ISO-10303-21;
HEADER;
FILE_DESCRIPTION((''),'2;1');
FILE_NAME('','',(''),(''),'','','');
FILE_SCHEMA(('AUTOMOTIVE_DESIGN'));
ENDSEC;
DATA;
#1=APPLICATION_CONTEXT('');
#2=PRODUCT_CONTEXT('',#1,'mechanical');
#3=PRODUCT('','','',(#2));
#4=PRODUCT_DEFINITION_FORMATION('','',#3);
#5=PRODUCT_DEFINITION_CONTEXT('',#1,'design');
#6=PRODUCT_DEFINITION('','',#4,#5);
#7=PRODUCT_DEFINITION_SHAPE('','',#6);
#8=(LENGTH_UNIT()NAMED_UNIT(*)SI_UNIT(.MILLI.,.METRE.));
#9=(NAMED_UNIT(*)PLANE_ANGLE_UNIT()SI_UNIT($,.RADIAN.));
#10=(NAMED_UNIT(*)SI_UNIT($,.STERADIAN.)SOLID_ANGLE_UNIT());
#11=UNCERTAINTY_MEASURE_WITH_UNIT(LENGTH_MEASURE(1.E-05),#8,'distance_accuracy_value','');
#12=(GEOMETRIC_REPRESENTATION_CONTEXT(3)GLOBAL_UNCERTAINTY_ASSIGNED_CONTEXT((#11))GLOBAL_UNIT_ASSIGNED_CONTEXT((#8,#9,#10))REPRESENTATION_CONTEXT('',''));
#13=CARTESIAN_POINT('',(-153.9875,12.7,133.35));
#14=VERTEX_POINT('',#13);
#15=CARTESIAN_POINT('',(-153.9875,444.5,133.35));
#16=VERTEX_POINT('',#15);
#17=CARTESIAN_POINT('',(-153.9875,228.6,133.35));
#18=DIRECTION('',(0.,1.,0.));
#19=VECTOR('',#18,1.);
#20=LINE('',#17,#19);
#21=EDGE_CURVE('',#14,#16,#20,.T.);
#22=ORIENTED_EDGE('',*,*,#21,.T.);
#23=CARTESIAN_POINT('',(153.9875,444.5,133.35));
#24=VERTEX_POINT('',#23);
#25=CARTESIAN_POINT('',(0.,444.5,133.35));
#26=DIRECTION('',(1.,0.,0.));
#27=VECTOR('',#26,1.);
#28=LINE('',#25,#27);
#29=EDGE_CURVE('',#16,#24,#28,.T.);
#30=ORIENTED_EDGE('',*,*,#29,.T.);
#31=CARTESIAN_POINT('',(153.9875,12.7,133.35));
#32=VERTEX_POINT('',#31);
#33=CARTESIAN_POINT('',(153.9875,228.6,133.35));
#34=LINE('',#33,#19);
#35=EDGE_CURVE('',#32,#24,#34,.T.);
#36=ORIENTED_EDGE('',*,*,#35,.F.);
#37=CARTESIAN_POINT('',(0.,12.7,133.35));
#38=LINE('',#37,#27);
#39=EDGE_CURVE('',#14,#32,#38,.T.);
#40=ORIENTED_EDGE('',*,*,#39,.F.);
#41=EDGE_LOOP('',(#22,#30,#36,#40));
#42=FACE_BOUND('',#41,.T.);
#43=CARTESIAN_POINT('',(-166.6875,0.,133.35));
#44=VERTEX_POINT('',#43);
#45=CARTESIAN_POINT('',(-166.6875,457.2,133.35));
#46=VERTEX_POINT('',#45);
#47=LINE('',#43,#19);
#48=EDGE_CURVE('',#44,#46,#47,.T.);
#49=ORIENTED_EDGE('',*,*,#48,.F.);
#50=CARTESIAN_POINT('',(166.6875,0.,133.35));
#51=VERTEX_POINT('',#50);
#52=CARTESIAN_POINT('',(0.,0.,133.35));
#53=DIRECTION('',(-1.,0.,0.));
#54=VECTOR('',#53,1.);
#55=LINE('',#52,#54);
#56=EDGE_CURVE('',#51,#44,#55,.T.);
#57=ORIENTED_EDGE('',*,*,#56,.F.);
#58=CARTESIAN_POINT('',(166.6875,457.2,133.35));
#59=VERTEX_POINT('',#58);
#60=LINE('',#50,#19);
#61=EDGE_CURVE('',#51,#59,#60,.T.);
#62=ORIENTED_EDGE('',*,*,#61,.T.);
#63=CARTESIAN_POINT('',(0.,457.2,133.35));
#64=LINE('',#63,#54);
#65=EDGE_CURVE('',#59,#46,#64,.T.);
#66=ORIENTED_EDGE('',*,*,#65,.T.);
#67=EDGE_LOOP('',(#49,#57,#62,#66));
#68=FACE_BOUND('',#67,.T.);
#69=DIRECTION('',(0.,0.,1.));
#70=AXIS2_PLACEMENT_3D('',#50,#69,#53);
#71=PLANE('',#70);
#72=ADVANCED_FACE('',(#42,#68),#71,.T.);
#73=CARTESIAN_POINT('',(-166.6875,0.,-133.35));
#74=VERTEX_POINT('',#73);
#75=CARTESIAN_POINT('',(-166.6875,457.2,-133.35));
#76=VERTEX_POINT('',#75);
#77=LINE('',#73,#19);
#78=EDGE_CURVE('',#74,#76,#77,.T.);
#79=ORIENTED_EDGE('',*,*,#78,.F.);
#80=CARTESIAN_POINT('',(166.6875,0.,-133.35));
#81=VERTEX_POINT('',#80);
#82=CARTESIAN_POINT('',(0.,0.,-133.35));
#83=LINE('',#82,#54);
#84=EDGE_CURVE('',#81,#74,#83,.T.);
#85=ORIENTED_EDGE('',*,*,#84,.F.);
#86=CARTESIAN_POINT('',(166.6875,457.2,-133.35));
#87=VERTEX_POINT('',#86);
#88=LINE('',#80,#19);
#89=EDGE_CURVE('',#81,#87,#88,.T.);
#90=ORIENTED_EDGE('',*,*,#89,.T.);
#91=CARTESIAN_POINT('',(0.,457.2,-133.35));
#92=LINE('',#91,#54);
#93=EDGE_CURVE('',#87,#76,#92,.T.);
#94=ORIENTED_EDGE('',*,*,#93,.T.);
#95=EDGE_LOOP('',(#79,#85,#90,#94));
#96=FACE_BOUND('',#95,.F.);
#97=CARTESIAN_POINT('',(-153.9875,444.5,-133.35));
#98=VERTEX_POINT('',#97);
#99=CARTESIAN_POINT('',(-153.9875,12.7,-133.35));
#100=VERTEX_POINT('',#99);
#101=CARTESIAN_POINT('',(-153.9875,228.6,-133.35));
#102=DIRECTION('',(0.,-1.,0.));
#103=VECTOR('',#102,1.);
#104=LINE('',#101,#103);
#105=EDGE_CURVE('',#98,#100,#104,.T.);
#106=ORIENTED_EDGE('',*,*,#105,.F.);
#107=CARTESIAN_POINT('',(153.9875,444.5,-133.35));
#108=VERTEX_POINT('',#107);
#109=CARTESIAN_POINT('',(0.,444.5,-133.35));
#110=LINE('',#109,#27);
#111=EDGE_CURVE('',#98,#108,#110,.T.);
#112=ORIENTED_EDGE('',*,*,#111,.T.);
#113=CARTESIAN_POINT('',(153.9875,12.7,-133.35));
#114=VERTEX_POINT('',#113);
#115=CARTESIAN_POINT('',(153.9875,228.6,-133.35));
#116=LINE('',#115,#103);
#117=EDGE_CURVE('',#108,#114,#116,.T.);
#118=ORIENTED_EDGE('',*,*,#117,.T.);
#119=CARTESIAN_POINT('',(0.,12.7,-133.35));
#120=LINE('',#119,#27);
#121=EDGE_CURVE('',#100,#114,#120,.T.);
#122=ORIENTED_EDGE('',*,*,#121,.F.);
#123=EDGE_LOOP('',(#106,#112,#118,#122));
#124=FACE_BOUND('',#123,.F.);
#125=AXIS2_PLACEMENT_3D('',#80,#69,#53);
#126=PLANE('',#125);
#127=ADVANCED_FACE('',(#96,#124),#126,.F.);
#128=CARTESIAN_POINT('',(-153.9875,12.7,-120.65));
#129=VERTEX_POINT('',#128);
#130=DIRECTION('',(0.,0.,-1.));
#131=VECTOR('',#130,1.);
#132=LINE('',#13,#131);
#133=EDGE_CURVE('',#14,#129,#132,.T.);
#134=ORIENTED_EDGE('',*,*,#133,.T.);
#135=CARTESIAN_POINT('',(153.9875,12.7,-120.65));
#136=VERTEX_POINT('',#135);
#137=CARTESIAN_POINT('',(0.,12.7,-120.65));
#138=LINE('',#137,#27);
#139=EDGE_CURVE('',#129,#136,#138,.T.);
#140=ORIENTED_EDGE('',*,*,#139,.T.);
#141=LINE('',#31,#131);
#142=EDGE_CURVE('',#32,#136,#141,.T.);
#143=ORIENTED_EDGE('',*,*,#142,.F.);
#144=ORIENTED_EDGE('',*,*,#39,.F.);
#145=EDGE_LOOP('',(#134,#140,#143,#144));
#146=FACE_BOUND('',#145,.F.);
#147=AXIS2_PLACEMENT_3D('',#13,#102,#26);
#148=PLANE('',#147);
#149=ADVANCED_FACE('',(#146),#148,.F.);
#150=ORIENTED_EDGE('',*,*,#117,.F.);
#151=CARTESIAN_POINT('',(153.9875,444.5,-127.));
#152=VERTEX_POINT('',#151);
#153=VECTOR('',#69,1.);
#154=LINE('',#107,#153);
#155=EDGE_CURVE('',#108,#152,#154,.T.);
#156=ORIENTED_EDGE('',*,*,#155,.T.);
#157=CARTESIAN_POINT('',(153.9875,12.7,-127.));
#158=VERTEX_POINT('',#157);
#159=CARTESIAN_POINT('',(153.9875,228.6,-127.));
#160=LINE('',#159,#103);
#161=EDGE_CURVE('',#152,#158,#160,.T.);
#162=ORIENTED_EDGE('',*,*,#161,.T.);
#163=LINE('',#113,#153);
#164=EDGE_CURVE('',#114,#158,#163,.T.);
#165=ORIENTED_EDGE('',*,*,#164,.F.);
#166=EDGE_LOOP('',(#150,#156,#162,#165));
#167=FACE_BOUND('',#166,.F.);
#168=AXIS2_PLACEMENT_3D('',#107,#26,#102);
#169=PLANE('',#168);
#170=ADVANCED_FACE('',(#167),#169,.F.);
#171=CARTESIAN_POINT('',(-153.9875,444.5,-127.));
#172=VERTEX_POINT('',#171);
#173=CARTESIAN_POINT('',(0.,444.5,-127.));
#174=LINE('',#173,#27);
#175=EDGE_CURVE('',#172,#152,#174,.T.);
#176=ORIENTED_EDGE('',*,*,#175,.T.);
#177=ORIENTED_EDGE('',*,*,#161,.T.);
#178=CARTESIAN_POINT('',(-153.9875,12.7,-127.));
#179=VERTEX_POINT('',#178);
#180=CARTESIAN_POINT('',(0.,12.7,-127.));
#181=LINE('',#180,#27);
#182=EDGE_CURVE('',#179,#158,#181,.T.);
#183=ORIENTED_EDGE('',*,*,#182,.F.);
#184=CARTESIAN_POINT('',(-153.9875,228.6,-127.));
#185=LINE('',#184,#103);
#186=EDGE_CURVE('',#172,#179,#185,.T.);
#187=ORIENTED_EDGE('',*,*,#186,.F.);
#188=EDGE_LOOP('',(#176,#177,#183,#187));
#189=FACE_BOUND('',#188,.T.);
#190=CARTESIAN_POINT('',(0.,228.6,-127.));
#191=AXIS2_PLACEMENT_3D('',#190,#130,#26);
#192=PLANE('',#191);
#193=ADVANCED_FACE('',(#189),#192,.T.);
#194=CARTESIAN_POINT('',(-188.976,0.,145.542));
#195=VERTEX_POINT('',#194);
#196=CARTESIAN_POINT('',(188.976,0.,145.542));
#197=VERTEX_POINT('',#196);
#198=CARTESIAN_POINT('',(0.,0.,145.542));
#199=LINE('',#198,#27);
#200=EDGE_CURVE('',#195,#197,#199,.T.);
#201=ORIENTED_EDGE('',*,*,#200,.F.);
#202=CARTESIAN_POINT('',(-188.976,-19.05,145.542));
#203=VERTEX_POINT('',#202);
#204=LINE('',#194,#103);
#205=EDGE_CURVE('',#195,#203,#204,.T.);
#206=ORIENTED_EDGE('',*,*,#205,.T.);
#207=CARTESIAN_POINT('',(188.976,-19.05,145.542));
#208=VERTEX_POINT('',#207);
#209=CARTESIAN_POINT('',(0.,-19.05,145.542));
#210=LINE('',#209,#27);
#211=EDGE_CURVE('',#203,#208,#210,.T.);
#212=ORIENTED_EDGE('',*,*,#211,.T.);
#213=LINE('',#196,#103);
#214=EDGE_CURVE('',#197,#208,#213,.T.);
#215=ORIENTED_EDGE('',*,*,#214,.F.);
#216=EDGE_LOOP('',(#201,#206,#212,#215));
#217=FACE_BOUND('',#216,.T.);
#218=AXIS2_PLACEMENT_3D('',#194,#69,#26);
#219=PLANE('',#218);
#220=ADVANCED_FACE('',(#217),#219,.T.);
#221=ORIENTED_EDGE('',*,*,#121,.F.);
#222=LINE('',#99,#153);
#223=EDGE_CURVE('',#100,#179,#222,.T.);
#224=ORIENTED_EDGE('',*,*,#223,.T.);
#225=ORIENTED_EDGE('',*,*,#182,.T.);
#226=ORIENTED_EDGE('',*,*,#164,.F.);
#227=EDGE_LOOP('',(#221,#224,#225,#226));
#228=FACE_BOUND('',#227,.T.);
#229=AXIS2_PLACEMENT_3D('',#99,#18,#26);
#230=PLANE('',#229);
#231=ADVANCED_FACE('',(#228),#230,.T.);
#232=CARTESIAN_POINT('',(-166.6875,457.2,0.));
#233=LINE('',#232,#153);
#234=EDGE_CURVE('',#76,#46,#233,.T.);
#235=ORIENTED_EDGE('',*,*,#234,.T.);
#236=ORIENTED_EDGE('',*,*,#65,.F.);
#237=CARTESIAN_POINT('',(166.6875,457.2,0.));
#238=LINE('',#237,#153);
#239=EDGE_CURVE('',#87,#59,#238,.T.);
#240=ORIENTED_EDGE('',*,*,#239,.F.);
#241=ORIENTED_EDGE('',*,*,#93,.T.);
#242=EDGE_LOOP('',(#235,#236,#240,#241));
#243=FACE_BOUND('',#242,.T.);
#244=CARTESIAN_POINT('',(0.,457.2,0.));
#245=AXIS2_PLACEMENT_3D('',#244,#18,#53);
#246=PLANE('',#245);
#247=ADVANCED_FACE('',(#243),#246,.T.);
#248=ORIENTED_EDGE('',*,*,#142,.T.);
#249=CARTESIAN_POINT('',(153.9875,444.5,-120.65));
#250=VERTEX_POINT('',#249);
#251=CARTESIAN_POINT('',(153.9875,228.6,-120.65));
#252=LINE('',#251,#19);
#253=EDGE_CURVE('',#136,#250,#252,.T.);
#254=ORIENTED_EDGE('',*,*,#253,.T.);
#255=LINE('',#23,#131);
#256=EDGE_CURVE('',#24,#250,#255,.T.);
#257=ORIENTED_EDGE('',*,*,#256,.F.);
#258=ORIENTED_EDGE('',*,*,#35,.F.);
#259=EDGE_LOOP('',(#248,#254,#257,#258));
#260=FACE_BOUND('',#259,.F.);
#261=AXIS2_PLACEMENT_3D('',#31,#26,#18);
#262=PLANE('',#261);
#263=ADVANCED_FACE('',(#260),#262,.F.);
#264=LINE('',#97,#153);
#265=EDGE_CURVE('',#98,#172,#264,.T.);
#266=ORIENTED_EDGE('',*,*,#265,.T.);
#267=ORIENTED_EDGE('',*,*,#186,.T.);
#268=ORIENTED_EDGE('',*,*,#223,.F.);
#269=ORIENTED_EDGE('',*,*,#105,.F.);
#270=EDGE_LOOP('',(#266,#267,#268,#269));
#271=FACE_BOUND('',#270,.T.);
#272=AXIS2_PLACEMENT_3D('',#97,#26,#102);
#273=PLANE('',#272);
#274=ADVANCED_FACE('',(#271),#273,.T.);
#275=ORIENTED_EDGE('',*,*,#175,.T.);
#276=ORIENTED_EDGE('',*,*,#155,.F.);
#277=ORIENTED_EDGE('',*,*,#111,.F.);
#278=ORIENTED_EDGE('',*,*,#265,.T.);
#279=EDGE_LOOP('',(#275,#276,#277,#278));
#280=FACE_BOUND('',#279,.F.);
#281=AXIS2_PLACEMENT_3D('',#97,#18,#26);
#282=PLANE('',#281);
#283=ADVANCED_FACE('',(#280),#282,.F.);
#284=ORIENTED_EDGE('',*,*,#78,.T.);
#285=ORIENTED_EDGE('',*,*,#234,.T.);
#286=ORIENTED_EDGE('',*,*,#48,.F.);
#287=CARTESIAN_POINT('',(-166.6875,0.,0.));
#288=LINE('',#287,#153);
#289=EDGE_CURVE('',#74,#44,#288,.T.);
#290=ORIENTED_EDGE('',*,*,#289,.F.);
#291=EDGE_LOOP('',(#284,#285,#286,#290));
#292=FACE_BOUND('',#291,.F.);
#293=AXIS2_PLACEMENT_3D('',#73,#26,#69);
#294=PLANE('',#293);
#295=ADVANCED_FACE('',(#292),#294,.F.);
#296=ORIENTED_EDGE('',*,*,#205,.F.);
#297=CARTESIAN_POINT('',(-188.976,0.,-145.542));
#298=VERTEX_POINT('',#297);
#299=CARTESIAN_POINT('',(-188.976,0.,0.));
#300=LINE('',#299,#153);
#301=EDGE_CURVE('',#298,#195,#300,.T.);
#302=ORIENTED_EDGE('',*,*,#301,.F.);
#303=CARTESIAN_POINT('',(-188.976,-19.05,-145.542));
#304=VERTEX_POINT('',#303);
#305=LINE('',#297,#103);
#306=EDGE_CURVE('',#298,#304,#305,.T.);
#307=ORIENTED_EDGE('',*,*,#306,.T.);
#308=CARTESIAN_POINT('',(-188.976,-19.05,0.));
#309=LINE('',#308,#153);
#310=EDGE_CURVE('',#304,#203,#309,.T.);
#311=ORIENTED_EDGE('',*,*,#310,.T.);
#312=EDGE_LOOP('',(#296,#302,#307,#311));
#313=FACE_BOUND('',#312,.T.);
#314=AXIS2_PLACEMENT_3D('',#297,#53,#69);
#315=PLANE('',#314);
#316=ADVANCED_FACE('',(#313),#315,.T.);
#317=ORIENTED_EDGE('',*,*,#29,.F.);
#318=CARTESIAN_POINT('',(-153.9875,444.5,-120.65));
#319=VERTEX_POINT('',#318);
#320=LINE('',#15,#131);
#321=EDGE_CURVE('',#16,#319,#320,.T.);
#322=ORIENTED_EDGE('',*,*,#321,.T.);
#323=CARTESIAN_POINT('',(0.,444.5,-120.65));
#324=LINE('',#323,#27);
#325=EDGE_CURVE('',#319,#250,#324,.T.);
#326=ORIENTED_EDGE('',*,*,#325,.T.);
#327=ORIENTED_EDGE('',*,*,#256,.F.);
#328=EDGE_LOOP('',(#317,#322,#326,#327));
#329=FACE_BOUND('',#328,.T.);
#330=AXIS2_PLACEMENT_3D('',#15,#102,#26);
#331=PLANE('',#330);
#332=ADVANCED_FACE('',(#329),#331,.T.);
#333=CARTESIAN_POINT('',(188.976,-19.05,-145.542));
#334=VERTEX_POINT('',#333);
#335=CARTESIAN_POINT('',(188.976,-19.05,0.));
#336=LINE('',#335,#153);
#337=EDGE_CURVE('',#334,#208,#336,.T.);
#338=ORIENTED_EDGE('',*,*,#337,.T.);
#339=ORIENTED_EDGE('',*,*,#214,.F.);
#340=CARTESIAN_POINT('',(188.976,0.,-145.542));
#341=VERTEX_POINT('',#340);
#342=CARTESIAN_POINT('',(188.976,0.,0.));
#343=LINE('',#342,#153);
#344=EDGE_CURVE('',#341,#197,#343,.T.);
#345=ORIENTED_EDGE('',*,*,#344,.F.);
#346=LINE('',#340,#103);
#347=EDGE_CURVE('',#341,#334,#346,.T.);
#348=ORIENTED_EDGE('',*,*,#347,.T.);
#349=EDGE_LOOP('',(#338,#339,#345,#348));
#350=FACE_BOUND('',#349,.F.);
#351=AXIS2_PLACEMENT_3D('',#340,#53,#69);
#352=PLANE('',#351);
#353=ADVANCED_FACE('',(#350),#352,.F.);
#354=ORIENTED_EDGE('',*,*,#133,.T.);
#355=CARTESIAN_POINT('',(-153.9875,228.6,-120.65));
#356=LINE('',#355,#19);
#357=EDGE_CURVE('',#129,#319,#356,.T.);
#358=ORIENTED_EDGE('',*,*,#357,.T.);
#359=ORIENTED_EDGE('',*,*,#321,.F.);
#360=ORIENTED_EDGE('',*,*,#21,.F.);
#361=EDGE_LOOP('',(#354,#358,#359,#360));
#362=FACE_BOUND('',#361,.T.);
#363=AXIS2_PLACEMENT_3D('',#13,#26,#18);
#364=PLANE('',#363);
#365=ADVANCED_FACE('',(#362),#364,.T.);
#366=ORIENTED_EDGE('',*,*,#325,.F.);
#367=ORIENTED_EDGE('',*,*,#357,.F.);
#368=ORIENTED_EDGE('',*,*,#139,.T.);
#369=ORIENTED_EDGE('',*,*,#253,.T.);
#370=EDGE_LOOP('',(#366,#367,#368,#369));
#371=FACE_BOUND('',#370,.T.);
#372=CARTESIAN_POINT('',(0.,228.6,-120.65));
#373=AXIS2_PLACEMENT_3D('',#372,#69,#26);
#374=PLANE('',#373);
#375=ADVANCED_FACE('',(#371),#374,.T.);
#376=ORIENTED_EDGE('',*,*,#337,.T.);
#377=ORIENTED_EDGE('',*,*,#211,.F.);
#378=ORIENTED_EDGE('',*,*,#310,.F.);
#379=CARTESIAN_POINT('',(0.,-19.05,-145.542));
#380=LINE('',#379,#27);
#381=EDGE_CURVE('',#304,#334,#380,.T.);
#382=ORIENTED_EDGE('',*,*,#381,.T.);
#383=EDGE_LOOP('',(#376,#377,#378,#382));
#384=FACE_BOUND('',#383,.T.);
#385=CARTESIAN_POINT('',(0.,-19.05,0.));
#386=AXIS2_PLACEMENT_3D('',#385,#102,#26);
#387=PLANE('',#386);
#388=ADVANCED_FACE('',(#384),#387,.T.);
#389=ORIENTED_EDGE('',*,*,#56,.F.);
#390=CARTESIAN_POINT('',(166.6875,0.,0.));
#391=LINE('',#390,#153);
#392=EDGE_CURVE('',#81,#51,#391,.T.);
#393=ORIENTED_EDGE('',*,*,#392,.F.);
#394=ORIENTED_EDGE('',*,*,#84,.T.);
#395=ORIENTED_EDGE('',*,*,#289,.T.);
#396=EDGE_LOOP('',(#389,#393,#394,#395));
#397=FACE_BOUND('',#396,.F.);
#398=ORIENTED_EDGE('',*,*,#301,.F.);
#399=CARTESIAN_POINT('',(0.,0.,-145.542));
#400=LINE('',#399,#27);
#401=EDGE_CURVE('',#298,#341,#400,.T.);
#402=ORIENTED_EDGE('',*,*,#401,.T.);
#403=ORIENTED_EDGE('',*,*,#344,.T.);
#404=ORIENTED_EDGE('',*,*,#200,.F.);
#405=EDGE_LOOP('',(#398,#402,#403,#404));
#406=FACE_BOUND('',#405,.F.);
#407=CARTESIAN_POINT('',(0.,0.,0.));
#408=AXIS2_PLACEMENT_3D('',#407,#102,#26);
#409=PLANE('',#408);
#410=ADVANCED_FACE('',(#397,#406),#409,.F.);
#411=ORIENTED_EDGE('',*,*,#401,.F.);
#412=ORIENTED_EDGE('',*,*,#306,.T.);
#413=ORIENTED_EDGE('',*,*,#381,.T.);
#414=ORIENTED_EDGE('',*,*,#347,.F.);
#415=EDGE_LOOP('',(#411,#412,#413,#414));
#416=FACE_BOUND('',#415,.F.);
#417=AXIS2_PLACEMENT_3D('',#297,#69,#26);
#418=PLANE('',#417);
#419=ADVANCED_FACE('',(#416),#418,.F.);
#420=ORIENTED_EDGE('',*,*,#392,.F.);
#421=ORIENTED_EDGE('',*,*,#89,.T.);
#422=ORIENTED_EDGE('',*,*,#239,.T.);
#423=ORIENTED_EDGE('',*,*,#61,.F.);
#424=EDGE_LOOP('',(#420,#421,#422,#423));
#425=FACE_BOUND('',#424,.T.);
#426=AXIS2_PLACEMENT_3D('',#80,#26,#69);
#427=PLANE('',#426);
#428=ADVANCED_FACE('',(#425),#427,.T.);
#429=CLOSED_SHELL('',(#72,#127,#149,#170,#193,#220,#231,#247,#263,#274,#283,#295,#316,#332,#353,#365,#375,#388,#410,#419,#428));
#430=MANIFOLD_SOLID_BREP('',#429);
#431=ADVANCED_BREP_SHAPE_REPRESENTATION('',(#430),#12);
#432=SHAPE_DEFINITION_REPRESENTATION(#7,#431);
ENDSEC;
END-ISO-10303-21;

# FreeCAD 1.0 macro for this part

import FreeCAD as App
import Part
import Sketcher

V = App.Vector
Q = App.Units.Quantity

doc = App.newDocument("Part")
params = doc.addObject("Spreadsheet::Sheet", "Params")
for row, (alias, value) in enumerate([
    ("sketch1_width", "14.88 in"),
    ("sketch1_height", "11.46 in"),
    ("pad1_length", "0.75 in"),
    ("sketch2_height", "10.5 in"),
    ("sketch2_width", "13.125 in"),
    ("pad2_length", "18 in"),
    ("sketch3_height", "17 in"),
    ("sketch3_width", "12.125 in"),
    ("pocket1_length", "10 in"),
    ("sketch4_height", "17 in"),
    ("sketch4_width", "12.125 in"),
    ("pocket2_length", "0.25 in"),
], start=1):
    params.set(f"A{row}", alias)
    params.set(f"B{row}", "=" + value)
    params.setAlias(f"B{row}", alias)

body = doc.addObject("PartDesign::Body", "Body")

# Sketch on XZ plane
sketch1 = doc.addObject("Sketcher::SketchObject", "Sketch")
body.addObject(sketch1)
sketch1.AttachmentSupport = (doc.XZ_Plane, [""])
sketch1.MapMode = "FlatFace"
sketch1.addGeometry([
    Part.LineSegment(V(-189, 146, 0), V(-189, -146, 0)),
    Part.LineSegment(V(-189, -146, 0), V(189, -146, 0)),
    Part.LineSegment(V(189, -146, 0), V(189, 146, 0)),
    Part.LineSegment(V(189, 146, 0), V(-189, 146, 0)),
], False)
sketch1.addConstraint([
    Sketcher.Constraint("Coincident", 0, 2, 1, 1),
    Sketcher.Constraint("Coincident", 1, 2, 2, 1),
    Sketcher.Constraint("Coincident", 2, 2, 3, 1),
    Sketcher.Constraint("Coincident", 3, 2, 0, 1),
    Sketcher.Constraint("Vertical", 0),
    Sketcher.Constraint("Horizontal", 1),
    Sketcher.Constraint("Vertical", 2),
    Sketcher.Constraint("Horizontal", 3),
    Sketcher.Constraint("Symmetric", 0, 2, 2, 2, -1, 1),
    Sketcher.Constraint("DistanceX", 1, 1, 1, 2, Q("14.88 in")),
    Sketcher.Constraint("DistanceY", 0, 2, 0, 1, Q("11.46 in")),
])
sketch1.setExpression("Constraints[9]", "Params.sketch1_width")
sketch1.setExpression("Constraints[10]", "Params.sketch1_height")
pad1 = doc.addObject("PartDesign::Pad", "Pad")
body.addObject(pad1)
pad1.Profile = sketch1
pad1.setExpression("Length", "Params.pad1_length")

# Sketch on XZ plane
sketch2 = doc.addObject("Sketcher::SketchObject", "Sketch001")
body.addObject(sketch2)
sketch2.AttachmentSupport = (doc.XZ_Plane, [""])
sketch2.MapMode = "FlatFace"
sketch2.addGeometry([
    Part.LineSegment(V(167, 133, 0), V(167, -133, 0)),
    Part.LineSegment(V(167, -133, 0), V(-167, -133, 0)),
    Part.LineSegment(V(-167, -133, 0), V(-167, 133, 0)),
    Part.LineSegment(V(-167, 133, 0), V(167, 133, 0)),
], False)
sketch2.addConstraint([
    Sketcher.Constraint("Coincident", 0, 2, 1, 1),
    Sketcher.Constraint("Coincident", 1, 2, 2, 1),
    Sketcher.Constraint("Coincident", 2, 2, 3, 1),
    Sketcher.Constraint("Coincident", 3, 2, 0, 1),
    Sketcher.Constraint("Vertical", 0),
    Sketcher.Constraint("Horizontal", 1),
    Sketcher.Constraint("Vertical", 2),
    Sketcher.Constraint("Horizontal", 3),
    Sketcher.Constraint("Symmetric", 0, 2, 2, 2, -1, 1),
    Sketcher.Constraint("DistanceY", 0, 2, 0, 1, Q("10.5 in")),
    Sketcher.Constraint("DistanceX", 1, 2, 1, 1, Q("13.125 in")),
])
sketch2.setExpression("Constraints[9]", "Params.sketch2_height")
sketch2.setExpression("Constraints[10]", "Params.sketch2_width")
pad2 = doc.addObject("PartDesign::Pad", "Pad001")
body.addObject(pad2)
pad2.Profile = sketch2
pad2.setExpression("Length", "Params.pad2_length")
pad2.Reversed = True

# Sketch on XY plane
sketch3 = doc.addObject("Sketcher::SketchObject", "Sketch002")
body.addObject(sketch3)
sketch3.AttachmentSupport = (doc.XY_Plane, [""])
sketch3.MapMode = "FlatFace"
sketch3.AttachmentOffset = App.Placement(V(0, 0, 5.25 * 25.4), App.Rotation())
sketch3.addGeometry([
    Part.LineSegment(V(-154, 444, 0), V(-154, 13, 0)),
    Part.LineSegment(V(-154, 13, 0), V(154, 13, 0)),
    Part.LineSegment(V(154, 13, 0), V(154, 444, 0)),
    Part.LineSegment(V(154, 444, 0), V(-154, 444, 0)),
], False)
sketch3.addConstraint([
    Sketcher.Constraint("Coincident", 0, 2, 1, 1),
    Sketcher.Constraint("Coincident", 1, 2, 2, 1),
    Sketcher.Constraint("Coincident", 2, 2, 3, 1),
    Sketcher.Constraint("Coincident", 3, 2, 0, 1),
    Sketcher.Constraint("Vertical", 0),
    Sketcher.Constraint("Horizontal", 1),
    Sketcher.Constraint("Vertical", 2),
    Sketcher.Constraint("Horizontal", 3),
    Sketcher.Constraint("DistanceY", 0, 2, 0, 1, Q("17 in")),
    Sketcher.Constraint("DistanceY", -1, 1, 0, 2, Q("0.5 in")),
    Sketcher.Constraint("DistanceX", 1, 1, 1, 2, Q("12.125 in")),
    Sketcher.Constraint("DistanceX", 0, 2, -1, 1, Q("6.0625 in")),
])
sketch3.setExpression("Constraints[8]", "Params.sketch3_height")
sketch3.setExpression("Constraints[10]", "Params.sketch3_width")
pocket1 = doc.addObject("PartDesign::Pocket", "Pocket")
body.addObject(pocket1)
pocket1.Profile = sketch3
pocket1.setExpression("Length", "Params.pocket1_length")

# Sketch on XY plane
sketch4 = doc.addObject("Sketcher::SketchObject", "Sketch003")
body.addObject(sketch4)
sketch4.AttachmentSupport = (doc.XY_Plane, [""])
sketch4.MapMode = "FlatFace"
sketch4.AttachmentOffset = App.Placement(V(0, 0, -5.25 * 25.4), App.Rotation())
sketch4.addGeometry([
    Part.LineSegment(V(-154, 13, 0), V(-154, 444, 0)),
    Part.LineSegment(V(-154, 444, 0), V(154, 444, 0)),
    Part.LineSegment(V(154, 444, 0), V(154, 13, 0)),
    Part.LineSegment(V(154, 13, 0), V(-154, 13, 0)),
], False)
sketch4.addConstraint([
    Sketcher.Constraint("Coincident", 0, 2, 1, 1),
    Sketcher.Constraint("Coincident", 1, 2, 2, 1),
    Sketcher.Constraint("Coincident", 2, 2, 3, 1),
    Sketcher.Constraint("Coincident", 3, 2, 0, 1),
    Sketcher.Constraint("Vertical", 0),
    Sketcher.Constraint("Horizontal", 1),
    Sketcher.Constraint("Vertical", 2),
    Sketcher.Constraint("Horizontal", 3),
    Sketcher.Constraint("DistanceY", 0, 1, 0, 2, Q("17 in")),
    Sketcher.Constraint("DistanceY", -1, 1, 0, 2, Q("17.5 in")),
    Sketcher.Constraint("DistanceX", 1, 1, 1, 2, Q("12.125 in")),
    Sketcher.Constraint("DistanceX", 0, 2, -1, 1, Q("6.0625 in")),
])
sketch4.setExpression("Constraints[8]", "Params.sketch4_height")
sketch4.setExpression("Constraints[10]", "Params.sketch4_width")
pocket2 = doc.addObject("PartDesign::Pocket", "Pocket001")
body.addObject(pocket2)
pocket2.Profile = sketch4
pocket2.setExpression("Length", "Params.pocket2_length")
pocket2.Reversed = True

doc.recompute()
